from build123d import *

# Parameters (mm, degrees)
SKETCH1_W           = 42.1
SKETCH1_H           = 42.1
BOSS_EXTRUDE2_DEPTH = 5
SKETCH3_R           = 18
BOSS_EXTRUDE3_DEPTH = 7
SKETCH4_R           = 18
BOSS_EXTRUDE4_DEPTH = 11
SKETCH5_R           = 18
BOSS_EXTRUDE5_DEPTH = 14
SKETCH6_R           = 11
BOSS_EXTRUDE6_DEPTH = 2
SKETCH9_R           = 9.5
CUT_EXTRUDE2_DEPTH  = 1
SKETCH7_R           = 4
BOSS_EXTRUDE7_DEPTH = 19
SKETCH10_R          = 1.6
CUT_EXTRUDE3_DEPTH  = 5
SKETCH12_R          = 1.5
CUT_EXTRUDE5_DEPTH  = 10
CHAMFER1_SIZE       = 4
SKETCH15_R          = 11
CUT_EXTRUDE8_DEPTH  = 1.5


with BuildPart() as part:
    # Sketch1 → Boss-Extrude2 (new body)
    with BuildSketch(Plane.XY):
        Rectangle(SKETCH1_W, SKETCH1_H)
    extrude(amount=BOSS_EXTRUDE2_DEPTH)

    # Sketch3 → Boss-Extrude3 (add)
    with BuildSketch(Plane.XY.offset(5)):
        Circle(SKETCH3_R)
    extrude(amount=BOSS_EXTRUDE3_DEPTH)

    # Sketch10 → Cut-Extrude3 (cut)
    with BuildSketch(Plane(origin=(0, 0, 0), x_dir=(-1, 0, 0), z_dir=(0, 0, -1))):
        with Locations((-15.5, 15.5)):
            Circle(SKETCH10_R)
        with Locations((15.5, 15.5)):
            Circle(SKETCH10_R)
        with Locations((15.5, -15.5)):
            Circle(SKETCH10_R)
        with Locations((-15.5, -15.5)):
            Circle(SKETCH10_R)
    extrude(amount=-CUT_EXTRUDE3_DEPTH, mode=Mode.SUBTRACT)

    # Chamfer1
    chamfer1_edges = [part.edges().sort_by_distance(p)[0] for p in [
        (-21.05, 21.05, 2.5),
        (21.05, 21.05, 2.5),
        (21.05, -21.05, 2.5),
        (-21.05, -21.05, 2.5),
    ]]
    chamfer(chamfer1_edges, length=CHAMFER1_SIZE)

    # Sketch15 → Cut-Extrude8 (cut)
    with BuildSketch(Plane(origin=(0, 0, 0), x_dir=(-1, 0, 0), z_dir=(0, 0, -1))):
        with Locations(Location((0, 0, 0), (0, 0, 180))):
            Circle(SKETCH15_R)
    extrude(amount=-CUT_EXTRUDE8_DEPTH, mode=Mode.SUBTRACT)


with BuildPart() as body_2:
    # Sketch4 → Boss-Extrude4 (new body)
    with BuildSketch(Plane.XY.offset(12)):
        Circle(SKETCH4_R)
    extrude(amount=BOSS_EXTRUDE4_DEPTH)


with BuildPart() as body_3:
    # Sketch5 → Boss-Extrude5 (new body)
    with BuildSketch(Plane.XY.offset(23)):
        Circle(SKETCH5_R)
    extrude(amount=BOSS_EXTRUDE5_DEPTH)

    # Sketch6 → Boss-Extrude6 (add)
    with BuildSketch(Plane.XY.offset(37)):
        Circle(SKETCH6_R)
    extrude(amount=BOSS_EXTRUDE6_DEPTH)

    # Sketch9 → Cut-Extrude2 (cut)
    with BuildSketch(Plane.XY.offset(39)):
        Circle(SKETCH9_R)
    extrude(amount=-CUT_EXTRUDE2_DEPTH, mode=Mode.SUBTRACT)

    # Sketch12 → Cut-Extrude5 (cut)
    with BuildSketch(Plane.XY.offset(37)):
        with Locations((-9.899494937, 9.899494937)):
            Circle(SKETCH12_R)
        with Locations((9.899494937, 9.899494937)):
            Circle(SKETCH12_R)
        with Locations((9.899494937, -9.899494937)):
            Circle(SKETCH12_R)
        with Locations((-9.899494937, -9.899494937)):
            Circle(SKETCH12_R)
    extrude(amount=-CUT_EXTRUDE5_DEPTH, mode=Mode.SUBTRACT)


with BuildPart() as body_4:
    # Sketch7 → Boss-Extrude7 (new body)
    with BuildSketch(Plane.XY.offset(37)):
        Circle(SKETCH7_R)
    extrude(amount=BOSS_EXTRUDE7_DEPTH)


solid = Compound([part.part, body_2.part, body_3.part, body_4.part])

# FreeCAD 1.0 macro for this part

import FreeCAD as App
import Part
import Sketcher

V = App.Vector


def edges_at(feature, points):
    """Names of the edges that pass closest to the given points."""
    edges = feature.Shape.Edges
    near = lambda p: min(range(len(edges)), key=lambda i: edges[i].distToShape(Part.Vertex(*p))[0])
    return sorted({f"Edge{near(p) + 1}" for p in points})

doc = App.newDocument("Part")
body = doc.addObject("PartDesign::Body", "Body")

# Sketch on XY plane
sketch1 = body.newObject("Sketcher::SketchObject", "Sketch")
sketch1.AttachmentSupport = (doc.getObject("XY_Plane"), [""])
sketch1.MapMode = "FlatFace"
sketch1.addGeometry([
    Part.LineSegment(V(-21, 21, 0), V(-21, -21, 0)),
    Part.LineSegment(V(-21, -21, 0), V(21, -21, 0)),
    Part.LineSegment(V(21, -21, 0), V(21, 21, 0)),
    Part.LineSegment(V(21, 21, 0), V(-21, 21, 0)),
], False)
sketch1.addConstraint([
    Sketcher.Constraint("Coincident", 0, 2, 1, 1),
    Sketcher.Constraint("Coincident", 1, 2, 2, 1),
    Sketcher.Constraint("Coincident", 2, 2, 3, 1),
    Sketcher.Constraint("Coincident", 3, 2, 0, 1),
    Sketcher.Constraint("Vertical", 0),
    Sketcher.Constraint("Horizontal", 1),
    Sketcher.Constraint("Vertical", 2),
    Sketcher.Constraint("Horizontal", 3),
    Sketcher.Constraint("Symmetric", 0, 2, 2, 2, -1, 1),
    Sketcher.Constraint("Equal", 3, 0),
    Sketcher.Constraint("DistanceX", 1, 1, 1, 2, 42.1),
])
pad1 = body.newObject("PartDesign::Pad", "Pad")
pad1.Profile = sketch1
pad1.Length = 5

# Sketch on XY plane
sketch2 = body.newObject("Sketcher::SketchObject", "Sketch001")
sketch2.AttachmentSupport = (doc.getObject("XY_Plane"), [""])
sketch2.MapMode = "FlatFace"
sketch2.AttachmentOffset = App.Placement(V(0, 0, 5), App.Rotation())
sketch2.addGeometry(Part.Circle(V(0, 0, 0), V(0, 0, 1), 18), False)
sketch2.addConstraint([
    Sketcher.Constraint("Coincident", 0, 3, -1, 1),
    Sketcher.Constraint("Diameter", 0, 36.0),
])
pad2 = body.newObject("PartDesign::Pad", "Pad001")
pad2.Profile = sketch2
pad2.Length = 7

# Sketch on XY plane
sketch3 = body.newObject("Sketcher::SketchObject", "Sketch002")
sketch3.AttachmentSupport = (doc.getObject("XY_Plane"), [""])
sketch3.MapMode = "FlatFace"
sketch3.addGeometry([
    Part.Circle(V(15.5, 15.5, 0), V(0, 0, 1), 1.6),
    Part.Circle(V(-15.5, 15.5, 0), V(0, 0, 1), 1.6),
    Part.Circle(V(-15.5, -15.5, 0), V(0, 0, 1), 1.6),
    Part.Circle(V(15.5, -15.5, 0), V(0, 0, 1), 1.6),
], False)
sketch3.addConstraint([
    Sketcher.Constraint("Equal", 0, 1),
    Sketcher.Constraint("Equal", 1, 2),
    Sketcher.Constraint("Equal", 2, 3),
    Sketcher.Constraint("Symmetric", 0, 3, 2, 3, -1, 1),
    Sketcher.Constraint("Symmetric", 1, 3, 3, 3, -1, 1),
    Sketcher.Constraint("Symmetric", 0, 3, 1, 3, -2),
    Sketcher.Constraint("Diameter", 0, 3.2),
    Sketcher.Constraint("DistanceX", 1, 3, 0, 3, 31.0),
    Sketcher.Constraint("DistanceY", 2, 3, 1, 3, 31.0),
])
pocket1 = body.newObject("PartDesign::Pocket", "Pocket")
pocket1.Profile = sketch3
pocket1.Length = 5
pocket1.Reversed = True
doc.recompute()

chamfer = body.newObject("PartDesign::Chamfer", "Chamfer")
chamfer.Base = (pocket1, edges_at(pocket1, [
    (-21.05, 21.05, 2.5),
    (21.05, 21.05, 2.5),
    (21.05, -21.05, 2.5),
    (-21.05, -21.05, 2.5),
]))
chamfer.Size = 4

# Sketch on XY plane
sketch4 = body.newObject("Sketcher::SketchObject", "Sketch003")
sketch4.AttachmentSupport = (doc.getObject("XY_Plane"), [""])
sketch4.MapMode = "FlatFace"
sketch4.addGeometry(Part.Circle(V(0, 0, 0), V(0, 0, 1), 11), False)
sketch4.addConstraint([
    Sketcher.Constraint("Coincident", 0, 3, -1, 1),
    Sketcher.Constraint("Diameter", 0, 22.0),
])
pocket2 = body.newObject("PartDesign::Pocket", "Pocket001")
pocket2.Profile = sketch4
pocket2.Length = 1.5
pocket2.Reversed = True
body2 = doc.addObject("PartDesign::Body", "Body001")

# Sketch on XY plane
sketch5 = body2.newObject("Sketcher::SketchObject", "Sketch004")
sketch5.AttachmentSupport = (doc.getObject("XY_Plane001"), [""])
sketch5.MapMode = "FlatFace"
sketch5.AttachmentOffset = App.Placement(V(0, 0, 12), App.Rotation())
sketch5.addGeometry(Part.Circle(V(0, 0, 0), V(0, 0, 1), 18), False)
sketch5.addConstraint([
    Sketcher.Constraint("Coincident", 0, 3, -1, 1),
    Sketcher.Constraint("Diameter", 0, 36.0),
])
pad3 = body2.newObject("PartDesign::Pad", "Pad002")
pad3.Profile = sketch5
pad3.Length = 11
body3 = doc.addObject("PartDesign::Body", "Body002")

# Sketch on XY plane
sketch6 = body3.newObject("Sketcher::SketchObject", "Sketch005")
sketch6.AttachmentSupport = (doc.getObject("XY_Plane002"), [""])
sketch6.MapMode = "FlatFace"
sketch6.AttachmentOffset = App.Placement(V(0, 0, 23), App.Rotation())
sketch6.addGeometry(Part.Circle(V(0, 0, 0), V(0, 0, 1), 18), False)
sketch6.addConstraint([
    Sketcher.Constraint("Coincident", 0, 3, -1, 1),
    Sketcher.Constraint("Diameter", 0, 36.0),
])
pad4 = body3.newObject("PartDesign::Pad", "Pad003")
pad4.Profile = sketch6
pad4.Length = 14

# Sketch on XY plane
sketch7 = body3.newObject("Sketcher::SketchObject", "Sketch006")
sketch7.AttachmentSupport = (doc.getObject("XY_Plane002"), [""])
sketch7.MapMode = "FlatFace"
sketch7.AttachmentOffset = App.Placement(V(0, 0, 37), App.Rotation())
sketch7.addGeometry(Part.Circle(V(0, 0, 0), V(0, 0, 1), 11), False)
sketch7.addConstraint([
    Sketcher.Constraint("Coincident", 0, 3, -1, 1),
    Sketcher.Constraint("Diameter", 0, 22.0),
])
pad5 = body3.newObject("PartDesign::Pad", "Pad004")
pad5.Profile = sketch7
pad5.Length = 2

# Sketch on XY plane
sketch8 = body3.newObject("Sketcher::SketchObject", "Sketch007")
sketch8.AttachmentSupport = (doc.getObject("XY_Plane002"), [""])
sketch8.MapMode = "FlatFace"
sketch8.AttachmentOffset = App.Placement(V(0, 0, 39), App.Rotation())
sketch8.addGeometry(Part.Circle(V(0, 0, 0), V(0, 0, 1), 10), False)
sketch8.addConstraint([
    Sketcher.Constraint("Coincident", 0, 3, -1, 1),
    Sketcher.Constraint("Diameter", 0, 19.0),
])
pocket3 = body3.newObject("PartDesign::Pocket", "Pocket002")
pocket3.Profile = sketch8
pocket3.Length = 1

# Sketch on XY plane
sketch9 = body3.newObject("Sketcher::SketchObject", "Sketch008")
sketch9.AttachmentSupport = (doc.getObject("XY_Plane002"), [""])
sketch9.MapMode = "FlatFace"
sketch9.AttachmentOffset = App.Placement(V(0, 0, 37), App.Rotation())
sketch9.addGeometry([
    Part.Circle(V(-9.9, 9.9, 0), V(0, 0, 1), 1.5),
    Part.Circle(V(9.9, 9.9, 0), V(0, 0, 1), 1.5),
    Part.Circle(V(9.9, -9.9, 0), V(0, 0, 1), 1.5),
    Part.Circle(V(-9.9, -9.9, 0), V(0, 0, 1), 1.5),
], False)
sketch9.addConstraint([
    Sketcher.Constraint("Equal", 0, 1),
    Sketcher.Constraint("Equal", 1, 2),
    Sketcher.Constraint("Equal", 2, 3),
    Sketcher.Constraint("Symmetric", 0, 3, 2, 3, -1, 1),
    Sketcher.Constraint("Symmetric", 1, 3, 3, 3, -1, 1),
    Sketcher.Constraint("Symmetric", 0, 3, 1, 3, -2),
    Sketcher.Constraint("Diameter", 0, 3.0),
    Sketcher.Constraint("DistanceX", 0, 3, 1, 3, 19.79899),
    Sketcher.Constraint("DistanceY", 2, 3, 1, 3, 19.79899),
])
pocket4 = body3.newObject("PartDesign::Pocket", "Pocket003")
pocket4.Profile = sketch9
pocket4.Length = 10
body4 = doc.addObject("PartDesign::Body", "Body003")

# Sketch on XY plane
sketch10 = body4.newObject("Sketcher::SketchObject", "Sketch009")
sketch10.AttachmentSupport = (doc.getObject("XY_Plane003"), [""])
sketch10.MapMode = "FlatFace"
sketch10.AttachmentOffset = App.Placement(V(0, 0, 37), App.Rotation())
sketch10.addGeometry(Part.Circle(V(0, 0, 0), V(0, 0, 1), 4), False)
sketch10.addConstraint([
    Sketcher.Constraint("Coincident", 0, 3, -1, 1),
    Sketcher.Constraint("Diameter", 0, 8.0),
])
pad6 = body4.newObject("PartDesign::Pad", "Pad005")
pad6.Profile = sketch10
pad6.Length = 19

doc.recompute()
